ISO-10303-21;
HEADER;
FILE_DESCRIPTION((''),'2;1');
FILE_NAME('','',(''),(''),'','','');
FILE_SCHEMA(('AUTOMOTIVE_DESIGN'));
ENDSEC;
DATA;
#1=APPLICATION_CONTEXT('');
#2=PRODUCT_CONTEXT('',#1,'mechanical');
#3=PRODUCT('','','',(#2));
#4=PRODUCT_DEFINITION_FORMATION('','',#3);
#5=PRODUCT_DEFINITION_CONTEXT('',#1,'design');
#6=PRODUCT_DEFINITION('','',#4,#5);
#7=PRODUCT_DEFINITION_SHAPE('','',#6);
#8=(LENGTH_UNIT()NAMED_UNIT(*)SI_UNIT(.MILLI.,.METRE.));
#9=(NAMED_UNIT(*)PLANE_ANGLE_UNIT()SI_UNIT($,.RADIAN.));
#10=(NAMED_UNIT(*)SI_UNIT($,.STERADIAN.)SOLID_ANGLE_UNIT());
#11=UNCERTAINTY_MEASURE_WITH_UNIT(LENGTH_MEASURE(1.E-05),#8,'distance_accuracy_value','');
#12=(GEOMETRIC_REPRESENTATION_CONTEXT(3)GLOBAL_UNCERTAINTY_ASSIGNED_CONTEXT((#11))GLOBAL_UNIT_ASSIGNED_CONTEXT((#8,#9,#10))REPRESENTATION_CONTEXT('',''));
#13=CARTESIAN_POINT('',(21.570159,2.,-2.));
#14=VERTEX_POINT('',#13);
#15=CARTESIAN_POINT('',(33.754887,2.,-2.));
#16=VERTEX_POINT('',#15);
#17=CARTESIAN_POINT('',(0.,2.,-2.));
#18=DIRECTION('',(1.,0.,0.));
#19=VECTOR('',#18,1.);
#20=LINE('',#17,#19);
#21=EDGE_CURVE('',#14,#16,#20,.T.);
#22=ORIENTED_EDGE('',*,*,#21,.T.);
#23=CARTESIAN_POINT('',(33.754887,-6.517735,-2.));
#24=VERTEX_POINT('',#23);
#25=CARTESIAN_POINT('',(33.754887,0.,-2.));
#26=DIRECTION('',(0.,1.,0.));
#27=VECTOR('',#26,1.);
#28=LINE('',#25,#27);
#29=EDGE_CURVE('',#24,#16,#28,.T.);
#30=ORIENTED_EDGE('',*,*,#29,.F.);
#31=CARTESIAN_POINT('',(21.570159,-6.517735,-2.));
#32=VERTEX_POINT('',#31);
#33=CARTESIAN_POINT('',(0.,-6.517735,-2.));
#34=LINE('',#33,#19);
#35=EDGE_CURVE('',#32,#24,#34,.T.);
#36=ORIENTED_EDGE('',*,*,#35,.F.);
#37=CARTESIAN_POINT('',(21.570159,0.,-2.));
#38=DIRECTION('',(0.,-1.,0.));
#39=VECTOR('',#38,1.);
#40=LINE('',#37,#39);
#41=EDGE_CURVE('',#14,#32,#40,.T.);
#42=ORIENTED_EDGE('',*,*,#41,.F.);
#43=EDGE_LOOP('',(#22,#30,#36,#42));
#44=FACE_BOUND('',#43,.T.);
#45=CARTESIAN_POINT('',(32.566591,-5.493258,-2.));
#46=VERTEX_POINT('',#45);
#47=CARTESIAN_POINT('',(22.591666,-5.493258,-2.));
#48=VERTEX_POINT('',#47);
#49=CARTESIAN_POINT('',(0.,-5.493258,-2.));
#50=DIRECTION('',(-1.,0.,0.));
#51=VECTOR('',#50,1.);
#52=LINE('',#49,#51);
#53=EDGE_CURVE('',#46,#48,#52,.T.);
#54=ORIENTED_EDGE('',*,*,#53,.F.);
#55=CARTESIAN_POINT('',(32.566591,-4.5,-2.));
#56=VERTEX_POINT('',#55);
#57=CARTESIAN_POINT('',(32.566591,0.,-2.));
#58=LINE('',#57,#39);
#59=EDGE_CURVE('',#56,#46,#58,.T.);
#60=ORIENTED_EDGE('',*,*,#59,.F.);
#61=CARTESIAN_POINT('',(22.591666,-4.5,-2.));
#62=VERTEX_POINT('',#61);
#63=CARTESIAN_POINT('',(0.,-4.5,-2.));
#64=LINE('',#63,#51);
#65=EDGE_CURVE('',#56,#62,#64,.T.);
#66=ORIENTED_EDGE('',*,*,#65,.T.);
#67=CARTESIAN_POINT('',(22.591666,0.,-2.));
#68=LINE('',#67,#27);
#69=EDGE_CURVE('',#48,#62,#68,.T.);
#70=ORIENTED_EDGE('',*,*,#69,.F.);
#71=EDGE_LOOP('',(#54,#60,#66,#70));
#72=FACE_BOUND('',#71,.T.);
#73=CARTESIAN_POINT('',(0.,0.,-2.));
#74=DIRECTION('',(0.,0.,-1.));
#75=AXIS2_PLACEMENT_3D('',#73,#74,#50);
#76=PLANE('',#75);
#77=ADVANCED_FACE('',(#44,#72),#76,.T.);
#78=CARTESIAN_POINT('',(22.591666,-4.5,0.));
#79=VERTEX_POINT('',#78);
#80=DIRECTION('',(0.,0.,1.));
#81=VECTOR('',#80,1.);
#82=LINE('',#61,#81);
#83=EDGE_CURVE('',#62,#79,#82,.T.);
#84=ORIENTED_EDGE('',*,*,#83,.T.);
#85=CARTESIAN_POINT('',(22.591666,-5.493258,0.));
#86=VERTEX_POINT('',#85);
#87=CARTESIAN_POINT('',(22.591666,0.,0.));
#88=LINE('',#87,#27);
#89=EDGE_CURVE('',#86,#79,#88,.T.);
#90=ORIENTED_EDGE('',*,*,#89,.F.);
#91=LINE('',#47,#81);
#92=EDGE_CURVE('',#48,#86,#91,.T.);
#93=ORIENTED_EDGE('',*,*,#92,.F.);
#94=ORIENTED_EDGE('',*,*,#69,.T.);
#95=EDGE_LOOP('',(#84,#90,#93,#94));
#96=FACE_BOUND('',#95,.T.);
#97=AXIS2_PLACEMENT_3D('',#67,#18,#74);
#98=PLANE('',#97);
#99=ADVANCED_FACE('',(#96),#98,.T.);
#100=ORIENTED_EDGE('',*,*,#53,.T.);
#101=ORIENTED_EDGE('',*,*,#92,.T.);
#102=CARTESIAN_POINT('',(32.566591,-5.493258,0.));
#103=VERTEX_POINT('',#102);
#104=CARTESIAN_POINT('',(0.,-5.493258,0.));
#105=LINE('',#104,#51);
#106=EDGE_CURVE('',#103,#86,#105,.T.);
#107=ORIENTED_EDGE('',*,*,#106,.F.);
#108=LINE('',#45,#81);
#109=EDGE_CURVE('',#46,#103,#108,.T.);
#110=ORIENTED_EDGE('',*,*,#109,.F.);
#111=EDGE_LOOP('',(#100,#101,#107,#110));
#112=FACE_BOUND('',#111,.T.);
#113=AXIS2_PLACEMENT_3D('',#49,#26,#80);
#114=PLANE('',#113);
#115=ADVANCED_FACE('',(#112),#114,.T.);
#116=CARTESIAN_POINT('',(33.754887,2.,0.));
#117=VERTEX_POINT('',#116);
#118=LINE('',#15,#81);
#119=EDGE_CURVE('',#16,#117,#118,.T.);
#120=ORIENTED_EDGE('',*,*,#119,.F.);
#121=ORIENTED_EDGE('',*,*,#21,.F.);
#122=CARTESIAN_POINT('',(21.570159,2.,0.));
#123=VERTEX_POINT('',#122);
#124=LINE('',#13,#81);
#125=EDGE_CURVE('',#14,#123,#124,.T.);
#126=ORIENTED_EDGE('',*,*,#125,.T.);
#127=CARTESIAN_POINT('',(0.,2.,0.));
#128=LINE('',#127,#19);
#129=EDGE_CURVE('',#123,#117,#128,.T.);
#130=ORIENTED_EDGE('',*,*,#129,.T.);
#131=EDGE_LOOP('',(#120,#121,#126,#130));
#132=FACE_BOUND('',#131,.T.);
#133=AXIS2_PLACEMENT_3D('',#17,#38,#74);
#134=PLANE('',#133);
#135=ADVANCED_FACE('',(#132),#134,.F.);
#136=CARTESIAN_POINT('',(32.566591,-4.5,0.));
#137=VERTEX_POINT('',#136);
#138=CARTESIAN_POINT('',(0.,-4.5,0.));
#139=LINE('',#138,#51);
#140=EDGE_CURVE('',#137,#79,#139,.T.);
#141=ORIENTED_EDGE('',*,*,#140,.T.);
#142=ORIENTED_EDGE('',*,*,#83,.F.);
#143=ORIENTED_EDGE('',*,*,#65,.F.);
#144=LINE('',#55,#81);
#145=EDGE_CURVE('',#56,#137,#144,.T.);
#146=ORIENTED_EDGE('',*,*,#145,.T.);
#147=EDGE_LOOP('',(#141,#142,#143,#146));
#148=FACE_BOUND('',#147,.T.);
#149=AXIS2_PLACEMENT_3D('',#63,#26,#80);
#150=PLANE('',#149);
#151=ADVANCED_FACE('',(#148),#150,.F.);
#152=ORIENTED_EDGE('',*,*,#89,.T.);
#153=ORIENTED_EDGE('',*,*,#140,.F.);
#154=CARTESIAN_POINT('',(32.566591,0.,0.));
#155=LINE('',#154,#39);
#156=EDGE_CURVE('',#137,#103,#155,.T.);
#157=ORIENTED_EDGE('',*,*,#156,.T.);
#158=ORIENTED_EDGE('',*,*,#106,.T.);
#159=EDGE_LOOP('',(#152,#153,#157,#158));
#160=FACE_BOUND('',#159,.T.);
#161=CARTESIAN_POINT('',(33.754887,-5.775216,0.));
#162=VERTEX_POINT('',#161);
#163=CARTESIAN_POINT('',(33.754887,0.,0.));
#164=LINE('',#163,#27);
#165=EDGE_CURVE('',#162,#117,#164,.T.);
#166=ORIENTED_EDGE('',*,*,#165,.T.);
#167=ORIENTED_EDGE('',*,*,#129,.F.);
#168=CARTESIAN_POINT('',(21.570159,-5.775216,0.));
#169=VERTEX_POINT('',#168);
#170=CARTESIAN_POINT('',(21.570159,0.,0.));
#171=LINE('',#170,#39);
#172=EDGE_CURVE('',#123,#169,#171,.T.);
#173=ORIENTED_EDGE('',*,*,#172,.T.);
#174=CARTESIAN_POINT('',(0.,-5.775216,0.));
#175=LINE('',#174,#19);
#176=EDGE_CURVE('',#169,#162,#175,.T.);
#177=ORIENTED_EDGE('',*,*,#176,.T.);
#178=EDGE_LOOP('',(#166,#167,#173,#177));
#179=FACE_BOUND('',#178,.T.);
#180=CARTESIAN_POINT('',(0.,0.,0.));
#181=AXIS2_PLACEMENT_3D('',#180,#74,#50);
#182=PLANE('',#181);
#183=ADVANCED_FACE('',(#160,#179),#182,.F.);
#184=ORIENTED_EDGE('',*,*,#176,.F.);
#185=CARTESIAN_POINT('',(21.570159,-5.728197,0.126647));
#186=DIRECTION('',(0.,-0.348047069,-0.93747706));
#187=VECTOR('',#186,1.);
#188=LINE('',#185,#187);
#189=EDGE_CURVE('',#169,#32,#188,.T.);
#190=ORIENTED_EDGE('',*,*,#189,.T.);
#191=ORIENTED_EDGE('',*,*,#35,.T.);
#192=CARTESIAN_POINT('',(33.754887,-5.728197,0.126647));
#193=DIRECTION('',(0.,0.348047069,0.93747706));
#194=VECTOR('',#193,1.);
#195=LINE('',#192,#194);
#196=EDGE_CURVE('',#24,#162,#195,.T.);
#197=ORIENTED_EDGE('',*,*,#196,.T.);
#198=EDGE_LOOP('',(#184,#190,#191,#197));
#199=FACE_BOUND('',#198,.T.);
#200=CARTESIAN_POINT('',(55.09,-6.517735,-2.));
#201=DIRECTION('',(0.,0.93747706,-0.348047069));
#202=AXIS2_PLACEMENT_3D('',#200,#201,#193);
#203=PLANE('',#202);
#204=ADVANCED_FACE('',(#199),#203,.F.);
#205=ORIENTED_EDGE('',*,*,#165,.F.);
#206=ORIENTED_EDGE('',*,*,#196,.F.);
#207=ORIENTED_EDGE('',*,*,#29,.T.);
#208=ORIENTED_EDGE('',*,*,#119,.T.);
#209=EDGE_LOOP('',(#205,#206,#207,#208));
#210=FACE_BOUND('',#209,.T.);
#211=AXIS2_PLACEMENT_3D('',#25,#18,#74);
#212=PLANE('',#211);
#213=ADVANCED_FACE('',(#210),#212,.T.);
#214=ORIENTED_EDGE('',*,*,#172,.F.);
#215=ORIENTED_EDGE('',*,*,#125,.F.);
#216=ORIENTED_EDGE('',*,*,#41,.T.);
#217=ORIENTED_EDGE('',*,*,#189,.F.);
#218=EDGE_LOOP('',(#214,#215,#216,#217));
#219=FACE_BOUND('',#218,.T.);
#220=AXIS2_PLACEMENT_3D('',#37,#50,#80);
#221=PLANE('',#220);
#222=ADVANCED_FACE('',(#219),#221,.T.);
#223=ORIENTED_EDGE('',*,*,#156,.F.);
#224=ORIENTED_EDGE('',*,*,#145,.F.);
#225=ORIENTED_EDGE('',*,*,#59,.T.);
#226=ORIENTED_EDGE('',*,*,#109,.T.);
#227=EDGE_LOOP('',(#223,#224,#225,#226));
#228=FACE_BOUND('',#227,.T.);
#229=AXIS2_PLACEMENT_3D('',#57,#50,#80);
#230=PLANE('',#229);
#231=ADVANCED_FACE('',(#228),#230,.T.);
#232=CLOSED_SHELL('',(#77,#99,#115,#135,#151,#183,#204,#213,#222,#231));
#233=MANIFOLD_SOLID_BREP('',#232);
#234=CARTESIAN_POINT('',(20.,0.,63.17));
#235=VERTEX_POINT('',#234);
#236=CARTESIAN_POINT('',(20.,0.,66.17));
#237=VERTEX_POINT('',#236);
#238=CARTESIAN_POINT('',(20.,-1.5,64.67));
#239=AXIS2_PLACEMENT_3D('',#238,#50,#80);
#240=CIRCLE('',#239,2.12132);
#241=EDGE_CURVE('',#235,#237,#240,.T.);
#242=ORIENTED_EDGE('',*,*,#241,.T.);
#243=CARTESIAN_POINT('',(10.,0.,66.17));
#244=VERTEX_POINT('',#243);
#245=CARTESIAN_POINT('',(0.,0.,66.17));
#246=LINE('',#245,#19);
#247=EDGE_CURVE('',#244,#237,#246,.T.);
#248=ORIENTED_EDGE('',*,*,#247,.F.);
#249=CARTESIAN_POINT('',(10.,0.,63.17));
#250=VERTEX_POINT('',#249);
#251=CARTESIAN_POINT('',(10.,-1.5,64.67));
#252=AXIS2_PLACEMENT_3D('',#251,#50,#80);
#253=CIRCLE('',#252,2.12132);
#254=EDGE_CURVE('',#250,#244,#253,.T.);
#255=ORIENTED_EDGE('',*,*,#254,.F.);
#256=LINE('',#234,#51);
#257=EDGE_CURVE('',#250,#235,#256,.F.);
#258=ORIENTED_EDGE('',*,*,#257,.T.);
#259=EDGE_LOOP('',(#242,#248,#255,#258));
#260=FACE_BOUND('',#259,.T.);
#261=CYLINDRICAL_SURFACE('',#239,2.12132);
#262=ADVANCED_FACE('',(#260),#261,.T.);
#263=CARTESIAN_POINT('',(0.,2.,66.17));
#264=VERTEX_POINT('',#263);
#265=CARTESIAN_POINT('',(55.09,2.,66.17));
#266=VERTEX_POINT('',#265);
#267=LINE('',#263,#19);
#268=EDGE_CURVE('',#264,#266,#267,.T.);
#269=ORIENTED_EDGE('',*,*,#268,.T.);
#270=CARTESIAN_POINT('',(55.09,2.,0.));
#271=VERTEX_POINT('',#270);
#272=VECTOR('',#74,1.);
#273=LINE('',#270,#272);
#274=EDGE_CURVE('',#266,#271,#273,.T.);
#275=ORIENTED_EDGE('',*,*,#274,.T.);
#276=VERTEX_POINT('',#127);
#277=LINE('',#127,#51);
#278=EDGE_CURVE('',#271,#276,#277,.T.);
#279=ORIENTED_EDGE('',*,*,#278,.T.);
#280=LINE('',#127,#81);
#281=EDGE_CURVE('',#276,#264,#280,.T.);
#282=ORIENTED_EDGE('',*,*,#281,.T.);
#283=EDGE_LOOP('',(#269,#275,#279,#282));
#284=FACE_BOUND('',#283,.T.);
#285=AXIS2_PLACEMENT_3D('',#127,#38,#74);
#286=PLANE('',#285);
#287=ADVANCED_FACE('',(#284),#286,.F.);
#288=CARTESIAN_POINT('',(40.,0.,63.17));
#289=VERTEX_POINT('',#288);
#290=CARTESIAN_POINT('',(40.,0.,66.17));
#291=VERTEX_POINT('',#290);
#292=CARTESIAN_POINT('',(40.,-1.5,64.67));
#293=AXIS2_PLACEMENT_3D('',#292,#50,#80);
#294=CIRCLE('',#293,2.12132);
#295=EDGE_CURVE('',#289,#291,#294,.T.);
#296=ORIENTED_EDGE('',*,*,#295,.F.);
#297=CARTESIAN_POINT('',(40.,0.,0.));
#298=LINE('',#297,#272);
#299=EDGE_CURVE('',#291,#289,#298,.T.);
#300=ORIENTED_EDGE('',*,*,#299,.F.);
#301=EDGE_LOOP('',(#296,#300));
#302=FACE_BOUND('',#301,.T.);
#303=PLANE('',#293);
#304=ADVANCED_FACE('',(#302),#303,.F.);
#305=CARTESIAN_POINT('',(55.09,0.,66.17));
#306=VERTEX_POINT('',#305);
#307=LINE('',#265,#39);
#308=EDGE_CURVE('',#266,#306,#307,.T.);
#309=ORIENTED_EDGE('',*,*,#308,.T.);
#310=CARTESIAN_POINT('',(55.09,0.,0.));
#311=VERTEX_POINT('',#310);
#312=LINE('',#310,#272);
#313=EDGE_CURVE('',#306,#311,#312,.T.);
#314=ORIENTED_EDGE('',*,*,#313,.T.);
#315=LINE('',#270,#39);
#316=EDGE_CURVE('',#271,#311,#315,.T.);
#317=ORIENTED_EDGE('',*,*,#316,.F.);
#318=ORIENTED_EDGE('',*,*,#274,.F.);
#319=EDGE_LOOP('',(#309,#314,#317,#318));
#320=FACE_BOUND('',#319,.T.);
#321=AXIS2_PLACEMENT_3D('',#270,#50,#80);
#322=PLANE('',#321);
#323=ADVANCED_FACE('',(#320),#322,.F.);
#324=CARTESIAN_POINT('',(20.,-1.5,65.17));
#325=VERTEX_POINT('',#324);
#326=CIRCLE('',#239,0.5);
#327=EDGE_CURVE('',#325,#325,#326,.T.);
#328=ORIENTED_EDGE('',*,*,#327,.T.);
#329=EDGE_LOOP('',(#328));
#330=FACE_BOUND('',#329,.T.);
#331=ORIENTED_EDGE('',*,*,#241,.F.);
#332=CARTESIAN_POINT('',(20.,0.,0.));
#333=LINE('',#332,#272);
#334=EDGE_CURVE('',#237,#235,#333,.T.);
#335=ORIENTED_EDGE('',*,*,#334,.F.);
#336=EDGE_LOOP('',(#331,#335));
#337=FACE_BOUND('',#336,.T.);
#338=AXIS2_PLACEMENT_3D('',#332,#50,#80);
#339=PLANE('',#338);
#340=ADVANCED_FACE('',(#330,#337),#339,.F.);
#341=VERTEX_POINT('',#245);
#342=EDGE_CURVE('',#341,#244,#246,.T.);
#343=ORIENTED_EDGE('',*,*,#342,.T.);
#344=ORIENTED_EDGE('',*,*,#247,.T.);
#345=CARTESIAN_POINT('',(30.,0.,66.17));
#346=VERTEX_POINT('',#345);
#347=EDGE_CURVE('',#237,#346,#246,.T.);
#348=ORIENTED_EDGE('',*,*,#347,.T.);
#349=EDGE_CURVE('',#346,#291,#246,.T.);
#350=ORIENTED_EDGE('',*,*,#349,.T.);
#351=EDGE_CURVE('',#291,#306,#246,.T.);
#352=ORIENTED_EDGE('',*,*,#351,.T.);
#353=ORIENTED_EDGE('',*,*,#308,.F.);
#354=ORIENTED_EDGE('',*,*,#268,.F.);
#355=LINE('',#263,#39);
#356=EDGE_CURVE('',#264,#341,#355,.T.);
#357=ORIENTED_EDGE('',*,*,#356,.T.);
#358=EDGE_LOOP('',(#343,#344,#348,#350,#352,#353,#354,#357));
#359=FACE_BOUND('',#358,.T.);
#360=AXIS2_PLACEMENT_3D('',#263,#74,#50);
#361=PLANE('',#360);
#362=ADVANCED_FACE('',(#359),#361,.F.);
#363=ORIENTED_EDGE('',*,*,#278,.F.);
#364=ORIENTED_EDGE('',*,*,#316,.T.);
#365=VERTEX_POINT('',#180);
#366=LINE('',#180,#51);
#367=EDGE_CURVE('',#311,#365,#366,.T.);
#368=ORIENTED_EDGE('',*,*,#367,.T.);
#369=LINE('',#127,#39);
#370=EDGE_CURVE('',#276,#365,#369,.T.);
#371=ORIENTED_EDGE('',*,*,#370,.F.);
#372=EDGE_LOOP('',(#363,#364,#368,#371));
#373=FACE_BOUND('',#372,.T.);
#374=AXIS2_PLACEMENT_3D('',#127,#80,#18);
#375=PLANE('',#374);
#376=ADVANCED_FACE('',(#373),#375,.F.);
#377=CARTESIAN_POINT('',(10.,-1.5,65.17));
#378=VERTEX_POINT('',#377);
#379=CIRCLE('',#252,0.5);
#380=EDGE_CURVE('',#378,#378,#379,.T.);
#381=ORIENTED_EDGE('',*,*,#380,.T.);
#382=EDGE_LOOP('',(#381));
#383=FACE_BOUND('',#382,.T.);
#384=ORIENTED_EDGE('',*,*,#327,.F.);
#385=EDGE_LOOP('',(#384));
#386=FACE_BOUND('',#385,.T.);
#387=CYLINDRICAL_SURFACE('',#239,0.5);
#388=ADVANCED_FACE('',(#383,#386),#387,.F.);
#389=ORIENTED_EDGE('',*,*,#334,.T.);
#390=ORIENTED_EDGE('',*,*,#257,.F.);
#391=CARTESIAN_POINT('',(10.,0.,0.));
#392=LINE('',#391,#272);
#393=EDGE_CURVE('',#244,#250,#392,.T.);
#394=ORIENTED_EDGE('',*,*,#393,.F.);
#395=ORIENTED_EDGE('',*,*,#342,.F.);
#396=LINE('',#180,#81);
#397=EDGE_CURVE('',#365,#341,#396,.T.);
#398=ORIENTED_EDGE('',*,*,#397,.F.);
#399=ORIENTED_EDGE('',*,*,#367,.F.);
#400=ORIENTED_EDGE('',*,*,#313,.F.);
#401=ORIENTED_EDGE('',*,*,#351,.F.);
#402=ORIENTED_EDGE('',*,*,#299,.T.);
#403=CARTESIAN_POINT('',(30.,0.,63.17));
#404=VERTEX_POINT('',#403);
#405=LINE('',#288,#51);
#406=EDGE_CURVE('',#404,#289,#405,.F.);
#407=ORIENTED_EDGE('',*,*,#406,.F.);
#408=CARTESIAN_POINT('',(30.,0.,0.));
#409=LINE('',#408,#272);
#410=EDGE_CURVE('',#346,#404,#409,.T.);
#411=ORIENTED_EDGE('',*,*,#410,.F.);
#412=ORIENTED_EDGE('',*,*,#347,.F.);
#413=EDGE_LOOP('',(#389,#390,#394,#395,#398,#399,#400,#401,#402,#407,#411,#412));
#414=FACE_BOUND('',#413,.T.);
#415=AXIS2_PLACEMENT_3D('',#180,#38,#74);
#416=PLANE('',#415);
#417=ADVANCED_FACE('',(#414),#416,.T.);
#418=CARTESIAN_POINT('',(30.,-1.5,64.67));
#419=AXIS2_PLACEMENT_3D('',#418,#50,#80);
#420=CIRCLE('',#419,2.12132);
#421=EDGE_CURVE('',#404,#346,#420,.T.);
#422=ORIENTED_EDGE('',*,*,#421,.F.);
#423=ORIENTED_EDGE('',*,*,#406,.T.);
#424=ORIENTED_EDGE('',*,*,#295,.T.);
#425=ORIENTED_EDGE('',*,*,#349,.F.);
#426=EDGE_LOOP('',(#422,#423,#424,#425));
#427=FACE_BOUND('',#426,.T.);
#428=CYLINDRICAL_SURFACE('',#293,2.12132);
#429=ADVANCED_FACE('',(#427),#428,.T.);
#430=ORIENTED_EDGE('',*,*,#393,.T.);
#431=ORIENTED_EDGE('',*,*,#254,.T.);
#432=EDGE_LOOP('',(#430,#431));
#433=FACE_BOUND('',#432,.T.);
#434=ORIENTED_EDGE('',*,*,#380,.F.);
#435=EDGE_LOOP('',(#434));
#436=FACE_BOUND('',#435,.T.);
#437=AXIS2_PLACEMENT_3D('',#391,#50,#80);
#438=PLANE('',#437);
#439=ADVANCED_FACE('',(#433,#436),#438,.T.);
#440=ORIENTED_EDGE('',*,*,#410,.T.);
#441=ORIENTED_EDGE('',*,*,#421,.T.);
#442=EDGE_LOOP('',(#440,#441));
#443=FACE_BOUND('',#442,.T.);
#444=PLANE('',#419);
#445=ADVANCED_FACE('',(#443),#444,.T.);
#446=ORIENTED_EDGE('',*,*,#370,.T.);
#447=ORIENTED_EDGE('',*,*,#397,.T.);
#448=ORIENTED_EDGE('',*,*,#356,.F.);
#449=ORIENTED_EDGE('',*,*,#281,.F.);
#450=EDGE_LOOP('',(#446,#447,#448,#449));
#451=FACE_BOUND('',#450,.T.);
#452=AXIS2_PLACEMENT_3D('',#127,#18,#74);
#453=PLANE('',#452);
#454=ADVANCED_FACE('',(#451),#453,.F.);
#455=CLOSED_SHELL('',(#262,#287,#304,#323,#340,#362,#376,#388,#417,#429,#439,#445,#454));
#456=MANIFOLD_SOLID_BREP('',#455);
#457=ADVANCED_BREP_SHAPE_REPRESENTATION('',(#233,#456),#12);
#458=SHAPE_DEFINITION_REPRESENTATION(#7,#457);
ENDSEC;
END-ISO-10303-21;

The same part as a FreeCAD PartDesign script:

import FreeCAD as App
import Part
import Sketcher
from FreeCAD import Vector
Q = App.Units.Quantity


def add_polygon(sketch, points):
    """Adds a closed chain of lines whose ends are joined by coincident constraints."""
    first, n = sketch.GeometryCount, len(points)
    for a, b in zip(points, points[1:] + points[:1]):
        sketch.addGeometry(Part.LineSegment(App.Vector(*a, 0), App.Vector(*b, 0)), False)
    for i in range(n):
        sketch.addConstraint(Sketcher.Constraint("Coincident", first + i, 2, first + (i + 1) % n, 1))

doc = App.newDocument("Part")
body = doc.addObject("PartDesign::Body", "Body")

sketch1 = doc.addObject("Sketcher::SketchObject", "Sketch")
body.addObject(sketch1)
sketch1.AttachmentSupport = (doc.XZ_Plane, [""])
sketch1.MapMode = "FlatFace"
add_polygon(sketch1, [(0, 0), (0, 66), (55, 66), (55, 0)])
sketch1.addConstraint([
    Sketcher.Constraint("Vertical", 0),
    Sketcher.Constraint("Horizontal", 1),
    Sketcher.Constraint("Vertical", 2),
    Sketcher.Constraint("Horizontal", 3),
    Sketcher.Constraint("Coincident", 3, 2, -1, 1),
    Sketcher.Constraint("DistanceX", 1, 1, 1, 2, Q("55.09 mm")),
    Sketcher.Constraint("DistanceY", 0, 1, 0, 2, Q("66.17 mm")),
])
pad1 = doc.addObject("PartDesign::Pad", "Pad")
body.addObject(pad1)
pad1.Profile = sketch1
pad1.Length = 2
pad1.Reversed = True

sketch2 = doc.addObject("Sketcher::SketchObject", "Sketch001")
body.addObject(sketch2)
sketch2.AttachmentSupport = (doc.YZ_Plane, [""])
sketch2.MapMode = "FlatFace"
sketch2.AttachmentOffset = App.Placement(Vector(0, 0, 10), App.Rotation())
sketch2.addGeometry([
    Part.Circle(Vector(-1.5, 64.7, 0), Vector(0, 0, 1), 2.1),
    Part.Circle(Vector(-1.5, 64.7, 0), Vector(0, 0, 1), 0.5),
], False)
sketch2.addConstraint([
    Sketcher.Constraint("Coincident", 1, 3, 0, 3),
    Sketcher.Constraint("Diameter", 1, Q("1 mm")),
    Sketcher.Constraint("DistanceX", 0, 3, -1, 1, Q("1.5 mm")),
    Sketcher.Constraint("Diameter", 0, Q("4.242641 mm")),
    Sketcher.Constraint("DistanceY", -1, 1, 0, 3, Q("64.67 mm")),
])
pad2 = doc.addObject("PartDesign::Pad", "Pad001")
body.addObject(pad2)
pad2.Profile = sketch2
pad2.Length = 10

sketch3 = doc.addObject("Sketcher::SketchObject", "Sketch002")
body.addObject(sketch3)
sketch3.AttachmentSupport = (doc.YZ_Plane, [""])
sketch3.MapMode = "FlatFace"
sketch3.AttachmentOffset = App.Placement(Vector(0, 0, 30), App.Rotation())
sketch3.addGeometry(Part.Circle(Vector(-1.5, 64.7, 0), Vector(0, 0, 1), 2.1), False)
sketch3.addConstraint([
    Sketcher.Constraint("DistanceX", 0, 3, -1, 1, Q("1.5 mm")),
    Sketcher.Constraint("Diameter", 0, Q("4.242641 mm")),
    Sketcher.Constraint("DistanceY", -1, 1, 0, 3, Q("64.67 mm")),
])
pad3 = doc.addObject("PartDesign::Pad", "Pad002")
body.addObject(pad3)
pad3.Profile = sketch3
pad3.Length = 10
body2 = doc.addObject("PartDesign::Body", "Body001")

sketch4 = doc.addObject("Sketcher::SketchObject", "Sketch003")
body2.addObject(sketch4)
sketch4.AttachmentSupport = (doc.getObject("XY_Plane001"), [""])
sketch4.MapMode = "FlatFace"
add_polygon(sketch4, [(33.8, 2), (33.8, -6.5), (21.6, -6.5), (21.6, 2)])
add_polygon(sketch4, [(22.6, -5.5), (32.6, -5.5), (32.6, -4.5), (22.6, -4.5)])
sketch4.addConstraint([
    Sketcher.Constraint("Vertical", 0),
    Sketcher.Constraint("Horizontal", 1),
    Sketcher.Constraint("Vertical", 2),
    Sketcher.Constraint("Horizontal", 3),
    Sketcher.Constraint("Horizontal", 4),
    Sketcher.Constraint("Vertical", 5),
    Sketcher.Constraint("Horizontal", 6),
    Sketcher.Constraint("Vertical", 7),
    Sketcher.Constraint("DistanceY", -1, 1, 2, 2, Q("2 mm")),
    Sketcher.Constraint("DistanceY", 5, 2, -1, 1, Q("4.5 mm")),
    Sketcher.Constraint("DistanceX", 1, 2, 1, 1, Q("12.184729 mm")),
    Sketcher.Constraint("DistanceY", 5, 1, 5, 2, Q("0.993258 mm")),
    Sketcher.Constraint("DistanceX", 4, 1, 4, 2, Q("9.974925 mm")),
    Sketcher.Constraint("DistanceY", 0, 2, 0, 1, Q("8.517735 mm")),
    Sketcher.Constraint("DistanceX", -1, 1, 1, 2, Q("21.570159 mm")),
    Sketcher.Constraint("DistanceX", -1, 1, 4, 2, Q("32.566591 mm")),
])
pad4 = doc.addObject("PartDesign::Pad", "Pad003")
body2.addObject(pad4)
pad4.Profile = sketch4
pad4.Length = 2
pad4.Reversed = True

sketch5 = doc.addObject("Sketcher::SketchObject", "Sketch004")
body2.addObject(sketch5)
sketch5.AttachmentSupport = (doc.getObject("YZ_Plane001"), [""])
sketch5.MapMode = "FlatFace"
sketch5.AttachmentOffset = App.Placement(Vector(0, 0, 21.570159), App.Rotation())
add_polygon(sketch5, [(-5.8, 0), (-6.5, -2), (-6.5, 0)])
sketch5.addConstraint([
    Sketcher.Constraint("Vertical", 1),
    Sketcher.Constraint("Horizontal", 2),
    Sketcher.Constraint("PointOnObject", 1, 2, -1),
    Sketcher.Constraint("DistanceY", 1, 1, 1, 2, Q("2 mm")),
    Sketcher.Constraint("DistanceX", 2, 1, 2, 2, Q("0.742519 mm")),
    Sketcher.Constraint("DistanceX", 0, 2, -1, 1, Q("6.517735 mm")),
])
pocket1 = doc.addObject("PartDesign::Pocket", "Pocket")
body2.addObject(pocket1)
pocket1.Profile = sketch5
pocket1.Type = "ThroughAll"
pocket1.Midplane = True

doc.recompute()
